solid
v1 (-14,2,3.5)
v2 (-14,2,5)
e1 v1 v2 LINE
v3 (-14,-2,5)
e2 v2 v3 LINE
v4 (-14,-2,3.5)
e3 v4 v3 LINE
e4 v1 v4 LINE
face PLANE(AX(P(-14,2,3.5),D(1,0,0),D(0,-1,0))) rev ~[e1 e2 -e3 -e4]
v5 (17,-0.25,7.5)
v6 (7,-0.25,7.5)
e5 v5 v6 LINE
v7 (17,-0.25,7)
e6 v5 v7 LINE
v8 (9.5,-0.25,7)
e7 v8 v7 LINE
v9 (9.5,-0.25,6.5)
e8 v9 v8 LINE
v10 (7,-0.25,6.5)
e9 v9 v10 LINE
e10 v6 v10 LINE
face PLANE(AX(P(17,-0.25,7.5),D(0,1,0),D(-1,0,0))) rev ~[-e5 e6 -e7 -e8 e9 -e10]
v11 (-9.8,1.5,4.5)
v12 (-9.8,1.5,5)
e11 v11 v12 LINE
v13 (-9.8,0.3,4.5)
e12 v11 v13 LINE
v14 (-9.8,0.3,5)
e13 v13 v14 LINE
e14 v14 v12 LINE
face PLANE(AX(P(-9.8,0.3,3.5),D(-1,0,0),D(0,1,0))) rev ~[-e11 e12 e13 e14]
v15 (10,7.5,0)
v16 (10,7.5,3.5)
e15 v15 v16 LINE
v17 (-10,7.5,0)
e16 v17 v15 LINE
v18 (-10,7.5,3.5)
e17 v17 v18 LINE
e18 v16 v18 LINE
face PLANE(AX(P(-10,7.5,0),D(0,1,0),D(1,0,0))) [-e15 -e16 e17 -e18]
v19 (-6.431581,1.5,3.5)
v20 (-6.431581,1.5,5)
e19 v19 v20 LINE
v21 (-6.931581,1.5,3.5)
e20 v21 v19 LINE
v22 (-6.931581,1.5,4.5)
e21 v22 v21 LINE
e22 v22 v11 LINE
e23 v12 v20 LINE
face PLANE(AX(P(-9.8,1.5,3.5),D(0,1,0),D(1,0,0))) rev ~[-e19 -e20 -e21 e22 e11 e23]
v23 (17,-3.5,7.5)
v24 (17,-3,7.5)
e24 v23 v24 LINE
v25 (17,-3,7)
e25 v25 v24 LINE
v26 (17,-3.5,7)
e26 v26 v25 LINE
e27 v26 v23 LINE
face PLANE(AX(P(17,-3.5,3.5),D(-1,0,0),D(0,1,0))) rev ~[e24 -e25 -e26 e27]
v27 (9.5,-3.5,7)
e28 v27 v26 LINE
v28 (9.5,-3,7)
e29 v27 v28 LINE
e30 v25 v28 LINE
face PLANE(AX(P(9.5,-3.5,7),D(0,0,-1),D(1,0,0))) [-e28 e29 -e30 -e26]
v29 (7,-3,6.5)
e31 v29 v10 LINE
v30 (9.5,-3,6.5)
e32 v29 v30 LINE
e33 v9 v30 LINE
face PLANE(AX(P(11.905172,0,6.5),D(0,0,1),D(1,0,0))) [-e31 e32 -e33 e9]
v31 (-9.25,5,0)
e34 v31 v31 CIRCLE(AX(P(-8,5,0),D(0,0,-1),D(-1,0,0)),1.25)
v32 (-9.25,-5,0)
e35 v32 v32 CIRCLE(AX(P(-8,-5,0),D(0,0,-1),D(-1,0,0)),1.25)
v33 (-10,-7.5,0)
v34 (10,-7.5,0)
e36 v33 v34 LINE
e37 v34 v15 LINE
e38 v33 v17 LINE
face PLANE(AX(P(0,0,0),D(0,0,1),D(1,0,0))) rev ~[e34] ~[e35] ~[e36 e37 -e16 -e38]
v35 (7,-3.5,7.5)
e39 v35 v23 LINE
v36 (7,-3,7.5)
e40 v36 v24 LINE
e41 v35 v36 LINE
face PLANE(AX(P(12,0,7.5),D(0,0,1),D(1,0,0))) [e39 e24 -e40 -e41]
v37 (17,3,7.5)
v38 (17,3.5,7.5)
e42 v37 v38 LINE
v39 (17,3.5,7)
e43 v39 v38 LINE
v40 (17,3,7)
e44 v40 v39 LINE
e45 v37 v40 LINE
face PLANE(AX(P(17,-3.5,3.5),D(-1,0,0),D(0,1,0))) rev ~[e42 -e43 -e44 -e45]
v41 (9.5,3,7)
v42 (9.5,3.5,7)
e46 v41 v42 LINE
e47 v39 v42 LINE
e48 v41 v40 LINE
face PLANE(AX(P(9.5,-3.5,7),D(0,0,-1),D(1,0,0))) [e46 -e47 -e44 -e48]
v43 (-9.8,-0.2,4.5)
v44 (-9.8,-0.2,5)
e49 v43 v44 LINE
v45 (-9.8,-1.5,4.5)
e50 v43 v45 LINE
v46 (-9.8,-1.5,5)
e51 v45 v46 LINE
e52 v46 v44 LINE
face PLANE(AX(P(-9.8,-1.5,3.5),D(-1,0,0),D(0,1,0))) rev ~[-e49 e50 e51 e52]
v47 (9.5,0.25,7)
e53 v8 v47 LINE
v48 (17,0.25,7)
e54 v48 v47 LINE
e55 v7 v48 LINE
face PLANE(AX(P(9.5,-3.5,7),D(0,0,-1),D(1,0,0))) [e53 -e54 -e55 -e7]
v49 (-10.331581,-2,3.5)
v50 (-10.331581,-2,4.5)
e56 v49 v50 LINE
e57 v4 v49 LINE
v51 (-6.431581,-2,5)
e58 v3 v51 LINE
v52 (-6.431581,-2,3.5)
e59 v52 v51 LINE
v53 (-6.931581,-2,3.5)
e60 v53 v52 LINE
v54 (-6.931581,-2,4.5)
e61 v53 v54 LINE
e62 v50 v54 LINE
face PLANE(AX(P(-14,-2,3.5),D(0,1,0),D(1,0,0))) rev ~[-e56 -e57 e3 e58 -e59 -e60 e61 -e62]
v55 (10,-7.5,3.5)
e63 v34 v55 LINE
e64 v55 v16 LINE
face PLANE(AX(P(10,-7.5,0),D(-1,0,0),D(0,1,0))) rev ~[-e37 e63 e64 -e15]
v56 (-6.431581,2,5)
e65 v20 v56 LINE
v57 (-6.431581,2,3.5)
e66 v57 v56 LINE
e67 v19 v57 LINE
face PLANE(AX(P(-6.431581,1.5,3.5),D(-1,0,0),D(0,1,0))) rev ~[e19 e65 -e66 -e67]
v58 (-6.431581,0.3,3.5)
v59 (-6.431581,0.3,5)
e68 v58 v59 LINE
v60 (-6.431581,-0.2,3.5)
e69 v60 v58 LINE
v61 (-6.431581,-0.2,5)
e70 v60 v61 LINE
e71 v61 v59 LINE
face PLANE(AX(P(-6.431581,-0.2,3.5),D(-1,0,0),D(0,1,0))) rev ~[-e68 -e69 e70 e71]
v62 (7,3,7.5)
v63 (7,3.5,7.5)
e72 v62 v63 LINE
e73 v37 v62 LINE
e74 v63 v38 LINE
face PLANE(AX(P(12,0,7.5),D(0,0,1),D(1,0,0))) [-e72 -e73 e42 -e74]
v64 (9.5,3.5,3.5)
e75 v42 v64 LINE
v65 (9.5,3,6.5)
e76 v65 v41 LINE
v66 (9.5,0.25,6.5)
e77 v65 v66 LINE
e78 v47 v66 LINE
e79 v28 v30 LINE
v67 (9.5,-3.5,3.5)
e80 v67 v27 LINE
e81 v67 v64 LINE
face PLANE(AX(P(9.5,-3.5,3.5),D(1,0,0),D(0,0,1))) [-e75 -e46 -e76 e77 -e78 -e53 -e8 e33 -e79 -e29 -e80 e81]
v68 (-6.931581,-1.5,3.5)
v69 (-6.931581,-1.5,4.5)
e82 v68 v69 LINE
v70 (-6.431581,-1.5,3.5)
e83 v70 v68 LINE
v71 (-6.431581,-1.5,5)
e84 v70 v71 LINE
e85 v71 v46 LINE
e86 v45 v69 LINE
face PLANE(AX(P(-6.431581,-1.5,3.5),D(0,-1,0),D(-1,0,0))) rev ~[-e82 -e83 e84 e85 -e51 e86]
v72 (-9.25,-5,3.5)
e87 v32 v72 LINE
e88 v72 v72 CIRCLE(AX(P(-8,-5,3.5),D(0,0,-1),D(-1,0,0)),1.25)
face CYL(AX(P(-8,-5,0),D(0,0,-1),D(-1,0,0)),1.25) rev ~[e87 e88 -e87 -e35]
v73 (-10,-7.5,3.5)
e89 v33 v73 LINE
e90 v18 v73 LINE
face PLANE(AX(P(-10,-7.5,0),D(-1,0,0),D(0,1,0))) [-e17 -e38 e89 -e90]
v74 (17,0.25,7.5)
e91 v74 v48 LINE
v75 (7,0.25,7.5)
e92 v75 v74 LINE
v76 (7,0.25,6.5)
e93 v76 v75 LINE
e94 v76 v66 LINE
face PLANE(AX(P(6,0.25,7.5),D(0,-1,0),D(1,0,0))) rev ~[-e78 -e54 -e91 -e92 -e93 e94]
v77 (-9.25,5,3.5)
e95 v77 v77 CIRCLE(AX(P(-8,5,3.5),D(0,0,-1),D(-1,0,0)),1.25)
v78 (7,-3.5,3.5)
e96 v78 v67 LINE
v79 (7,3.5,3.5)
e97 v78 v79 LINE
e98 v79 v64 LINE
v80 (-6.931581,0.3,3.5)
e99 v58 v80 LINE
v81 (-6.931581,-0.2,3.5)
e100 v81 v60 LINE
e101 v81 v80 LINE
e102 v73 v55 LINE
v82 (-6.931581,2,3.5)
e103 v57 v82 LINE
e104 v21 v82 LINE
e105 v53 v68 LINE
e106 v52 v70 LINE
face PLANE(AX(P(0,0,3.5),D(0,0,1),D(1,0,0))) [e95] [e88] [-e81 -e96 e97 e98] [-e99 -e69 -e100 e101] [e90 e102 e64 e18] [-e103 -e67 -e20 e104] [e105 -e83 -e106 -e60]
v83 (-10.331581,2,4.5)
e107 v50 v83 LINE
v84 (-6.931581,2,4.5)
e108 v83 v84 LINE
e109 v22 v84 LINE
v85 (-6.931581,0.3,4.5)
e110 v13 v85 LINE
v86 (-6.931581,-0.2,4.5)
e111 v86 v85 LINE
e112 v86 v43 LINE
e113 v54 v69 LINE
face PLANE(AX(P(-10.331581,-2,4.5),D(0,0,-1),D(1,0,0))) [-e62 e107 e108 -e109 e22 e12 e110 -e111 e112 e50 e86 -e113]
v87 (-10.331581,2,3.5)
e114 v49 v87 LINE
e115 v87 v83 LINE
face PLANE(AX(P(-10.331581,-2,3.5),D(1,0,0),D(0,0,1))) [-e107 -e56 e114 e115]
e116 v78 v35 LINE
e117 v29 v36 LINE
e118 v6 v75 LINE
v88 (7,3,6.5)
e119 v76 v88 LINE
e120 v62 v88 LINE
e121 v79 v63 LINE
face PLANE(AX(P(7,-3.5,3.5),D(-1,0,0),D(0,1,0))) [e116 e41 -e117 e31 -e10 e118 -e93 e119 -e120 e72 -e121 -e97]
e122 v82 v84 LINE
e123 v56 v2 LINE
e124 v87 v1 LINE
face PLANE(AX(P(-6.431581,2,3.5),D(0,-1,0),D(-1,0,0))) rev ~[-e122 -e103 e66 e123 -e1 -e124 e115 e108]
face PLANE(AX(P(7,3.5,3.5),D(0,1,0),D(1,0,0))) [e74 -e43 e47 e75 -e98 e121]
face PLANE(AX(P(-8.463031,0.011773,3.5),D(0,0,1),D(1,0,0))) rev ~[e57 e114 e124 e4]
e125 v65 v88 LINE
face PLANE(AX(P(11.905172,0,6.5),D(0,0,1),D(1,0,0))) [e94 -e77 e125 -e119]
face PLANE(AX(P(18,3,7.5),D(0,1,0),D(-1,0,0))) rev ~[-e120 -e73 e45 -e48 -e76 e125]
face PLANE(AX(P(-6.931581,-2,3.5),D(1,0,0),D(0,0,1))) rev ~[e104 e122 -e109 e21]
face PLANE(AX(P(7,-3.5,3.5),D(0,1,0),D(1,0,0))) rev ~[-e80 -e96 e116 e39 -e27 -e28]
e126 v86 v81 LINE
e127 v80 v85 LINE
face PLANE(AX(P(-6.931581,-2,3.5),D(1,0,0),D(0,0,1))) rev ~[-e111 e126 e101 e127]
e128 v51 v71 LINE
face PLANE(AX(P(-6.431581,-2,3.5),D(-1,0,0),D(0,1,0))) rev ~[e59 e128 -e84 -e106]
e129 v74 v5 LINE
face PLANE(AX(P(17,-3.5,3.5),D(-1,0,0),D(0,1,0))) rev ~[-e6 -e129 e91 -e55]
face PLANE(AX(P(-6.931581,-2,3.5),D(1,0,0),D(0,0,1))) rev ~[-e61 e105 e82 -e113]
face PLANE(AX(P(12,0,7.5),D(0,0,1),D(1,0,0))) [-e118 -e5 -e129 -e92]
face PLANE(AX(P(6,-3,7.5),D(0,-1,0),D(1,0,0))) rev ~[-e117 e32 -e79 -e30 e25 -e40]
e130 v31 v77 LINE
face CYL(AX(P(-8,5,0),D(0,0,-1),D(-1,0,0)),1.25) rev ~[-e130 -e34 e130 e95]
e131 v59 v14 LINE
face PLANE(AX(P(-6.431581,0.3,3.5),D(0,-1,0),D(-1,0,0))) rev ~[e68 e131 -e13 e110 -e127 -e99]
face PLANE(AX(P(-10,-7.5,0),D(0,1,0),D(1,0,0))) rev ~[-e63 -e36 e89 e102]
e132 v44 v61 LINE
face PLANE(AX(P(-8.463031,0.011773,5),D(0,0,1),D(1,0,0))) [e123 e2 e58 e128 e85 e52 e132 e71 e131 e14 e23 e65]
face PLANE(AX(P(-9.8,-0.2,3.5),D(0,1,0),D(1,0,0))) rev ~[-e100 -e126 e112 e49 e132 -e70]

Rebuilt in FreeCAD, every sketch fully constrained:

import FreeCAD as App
import Part
import Sketcher

V = App.Vector

doc = App.newDocument("Part")
params = doc.addObject("Spreadsheet::Sheet", "Params")
for row, (alias, value) in enumerate([
    ("sketch1_width", "20 mm"),
    ("sketch1_height", "15 mm"),
    ("pad1_length", "3.5 mm"),
    ("sketch2_height", "4 mm"),
    ("sketch2_height2", "0.5 mm"),
    ("sketch2_height3", "1.3 mm"),
    ("pad2_length", "1.5 mm"),
    ("sketch3_height", "1 mm"),
    ("sketch3_width", "3.4 mm"),
    ("sketch4_width", "10 mm"),
    ("sketch4_height", "7 mm"),
    ("pad3_length", "4 mm"),
    ("sketch5_width", "7.5 mm"),
    ("sketch5_height", "3.5 mm"),
    ("sketch6_width", "11 mm"),
    ("sketch6_width2", "12 mm"),
    ("sketch6_height", "6 mm"),
    ("sketch6_height2", "0.5 mm"),
    ("pocket3_length", "1 mm"),
    ("sketch7_diameter", "2.5 mm"),
], start=1):
    params.set(f"A{row}", alias)
    params.set(f"B{row}", "=" + value)
    params.setAlias(f"B{row}", alias)

body = doc.addObject("PartDesign::Body", "Body")

sketch1 = body.newObject("Sketcher::SketchObject", "Sketch")
sketch1.AttachmentSupport = (doc.getObject("XY_Plane"), [""])
sketch1.MapMode = "FlatFace"
sketch1.addGeometry(Part.LineSegment(V(-10, 8, 0), V(-10, -8, 0)), False)
sketch1.addGeometry(Part.LineSegment(V(-10, -8, 0), V(10, -8, 0)), False)
sketch1.addGeometry(Part.LineSegment(V(10, -8, 0), V(10, 8, 0)), False)
sketch1.addGeometry(Part.LineSegment(V(10, 8, 0), V(-10, 8, 0)), False)
sketch1.addConstraint(Sketcher.Constraint("Coincident", 0, 2, 1, 1))
sketch1.addConstraint(Sketcher.Constraint("Coincident", 1, 2, 2, 1))
sketch1.addConstraint(Sketcher.Constraint("Coincident", 2, 2, 3, 1))
sketch1.addConstraint(Sketcher.Constraint("Coincident", 3, 2, 0, 1))
sketch1.addConstraint(Sketcher.Constraint("Vertical", 0))
sketch1.addConstraint(Sketcher.Constraint("Horizontal", 1))
sketch1.addConstraint(Sketcher.Constraint("Vertical", 2))
sketch1.addConstraint(Sketcher.Constraint("Horizontal", 3))
sketch1.addConstraint(Sketcher.Constraint("Symmetric", 0, 2, 2, 2, -1, 1))
sketch1.addConstraint(Sketcher.Constraint("DistanceX", 1, 1, 1, 2, 20.0))
sketch1.addConstraint(Sketcher.Constraint("DistanceY", 0, 2, 0, 1, 15.0))
sketch1.setExpression("Constraints[9]", "Params.sketch1_width")
sketch1.setExpression("Constraints[10]", "Params.sketch1_height")
pad1 = body.newObject("PartDesign::Pad", "Pad")
pad1.Profile = sketch1
pad1.setExpression("Length", "Params.pad1_length")

sketch2 = body.newObject("Sketcher::SketchObject", "Sketch001")
sketch2.AttachmentSupport = (doc.getObject("XY_Plane"), [""])
sketch2.MapMode = "FlatFace"
sketch2.AttachmentOffset = App.Placement(V(0, 0, 3.5), App.Rotation())
sketch2.addGeometry(Part.LineSegment(V(-6.4, 2, 0), V(-14, 2, 0)), False)
sketch2.addGeometry(Part.LineSegment(V(-14, 2, 0), V(-14, -2, 0)), False)
sketch2.addGeometry(Part.LineSegment(V(-14, -2, 0), V(-6.4, -2, 0)), False)
sketch2.addGeometry(Part.LineSegment(V(-6.4, -2, 0), V(-6.4, -1.5, 0)), False)
sketch2.addGeometry(Part.LineSegment(V(-6.4, -1.5, 0), V(-9.8, -1.5, 0)), False)
sketch2.addGeometry(Part.LineSegment(V(-9.8, -1.5, 0), V(-9.8, -0.2, 0)), False)
sketch2.addGeometry(Part.LineSegment(V(-9.8, -0.2, 0), V(-6.4, -0.2, 0)), False)
sketch2.addGeometry(Part.LineSegment(V(-6.4, -0.2, 0), V(-6.4, 0.3, 0)), False)
sketch2.addGeometry(Part.LineSegment(V(-6.4, 0.3, 0), V(-9.8, 0.3, 0)), False)
sketch2.addGeometry(Part.LineSegment(V(-9.8, 0.3, 0), V(-9.8, 1.5, 0)), False)
sketch2.addGeometry(Part.LineSegment(V(-9.8, 1.5, 0), V(-6.4, 1.5, 0)), False)
sketch2.addGeometry(Part.LineSegment(V(-6.4, 1.5, 0), V(-6.4, 2, 0)), False)
sketch2.addConstraint(Sketcher.Constraint("Coincident", 0, 2, 1, 1))
sketch2.addConstraint(Sketcher.Constraint("Coincident", 1, 2, 2, 1))
sketch2.addConstraint(Sketcher.Constraint("Coincident", 2, 2, 3, 1))
sketch2.addConstraint(Sketcher.Constraint("Coincident", 3, 2, 4, 1))
sketch2.addConstraint(Sketcher.Constraint("Coincident", 4, 2, 5, 1))
sketch2.addConstraint(Sketcher.Constraint("Coincident", 5, 2, 6, 1))
sketch2.addConstraint(Sketcher.Constraint("Coincident", 6, 2, 7, 1))
sketch2.addConstraint(Sketcher.Constraint("Coincident", 7, 2, 8, 1))
sketch2.addConstraint(Sketcher.Constraint("Coincident", 8, 2, 9, 1))
sketch2.addConstraint(Sketcher.Constraint("Coincident", 9, 2, 10, 1))
sketch2.addConstraint(Sketcher.Constraint("Coincident", 10, 2, 11, 1))
sketch2.addConstraint(Sketcher.Constraint("Coincident", 11, 2, 0, 1))
sketch2.addConstraint(Sketcher.Constraint("Horizontal", 0))
sketch2.addConstraint(Sketcher.Constraint("Vertical", 1))
sketch2.addConstraint(Sketcher.Constraint("Horizontal", 2))
sketch2.addConstraint(Sketcher.Constraint("Vertical", 3))
sketch2.addConstraint(Sketcher.Constraint("Horizontal", 4))
sketch2.addConstraint(Sketcher.Constraint("Vertical", 5))
sketch2.addConstraint(Sketcher.Constraint("Horizontal", 6))
sketch2.addConstraint(Sketcher.Constraint("Vertical", 7))
sketch2.addConstraint(Sketcher.Constraint("Horizontal", 8))
sketch2.addConstraint(Sketcher.Constraint("Vertical", 9))
sketch2.addConstraint(Sketcher.Constraint("Horizontal", 10))
sketch2.addConstraint(Sketcher.Constraint("Vertical", 11))
sketch2.addConstraint(Sketcher.Constraint("Symmetric", 4, 2, 9, 2, -1))
sketch2.addConstraint(Sketcher.Constraint("Symmetric", 2, 2, 11, 2, -1))
sketch2.addConstraint(Sketcher.Constraint("Vertical", 3, 2, 6, 2))
sketch2.addConstraint(Sketcher.Constraint("Equal", 3, 7))
sketch2.addConstraint(Sketcher.Constraint("DistanceY", 1, 2, 1, 1, 4.0))
sketch2.addConstraint(Sketcher.Constraint("DistanceY", 3, 1, 3, 2, 0.5))
sketch2.addConstraint(Sketcher.Constraint("DistanceY", 5, 1, 5, 2, 1.3))
sketch2.addConstraint(Sketcher.Constraint("DistanceX", 0, 2, -1, 1, 14.0))
sketch2.addConstraint(Sketcher.Constraint("DistanceX", 4, 2, -1, 1, 9.8))
sketch2.addConstraint(Sketcher.Constraint("DistanceX", 0, 2, 0, 1, 7.568419))
sketch2.setExpression("Constraints[28]", "Params.sketch2_height")
sketch2.setExpression("Constraints[29]", "Params.sketch2_height2")
sketch2.setExpression("Constraints[30]", "Params.sketch2_height3")
pad2 = body.newObject("PartDesign::Pad", "Pad001")
pad2.Profile = sketch2
pad2.setExpression("Length", "Params.pad2_length")

sketch3 = body.newObject("Sketcher::SketchObject", "Sketch002")
sketch3.AttachmentSupport = (doc.getObject("XZ_Plane"), [""])
sketch3.MapMode = "FlatFace"
sketch3.AttachmentOffset = App.Placement(V(0, 0, 2), App.Rotation())
sketch3.addGeometry(Part.LineSegment(V(-10.3, 4.5, 0), V(-10.3, 3.5, 0)), False)
sketch3.addGeometry(Part.LineSegment(V(-10.3, 3.5, 0), V(-6.9, 3.5, 0)), False)
sketch3.addGeometry(Part.LineSegment(V(-6.9, 3.5, 0), V(-6.9, 4.5, 0)), False)
sketch3.addGeometry(Part.LineSegment(V(-6.9, 4.5, 0), V(-10.3, 4.5, 0)), False)
sketch3.addConstraint(Sketcher.Constraint("Coincident", 0, 2, 1, 1))
sketch3.addConstraint(Sketcher.Constraint("Coincident", 1, 2, 2, 1))
sketch3.addConstraint(Sketcher.Constraint("Coincident", 2, 2, 3, 1))
sketch3.addConstraint(Sketcher.Constraint("Coincident", 3, 2, 0, 1))
sketch3.addConstraint(Sketcher.Constraint("Vertical", 0))
sketch3.addConstraint(Sketcher.Constraint("Horizontal", 1))
sketch3.addConstraint(Sketcher.Constraint("Vertical", 2))
sketch3.addConstraint(Sketcher.Constraint("Horizontal", 3))
sketch3.addConstraint(Sketcher.Constraint("DistanceY", 0, 2, 0, 1, 1.0))
sketch3.addConstraint(Sketcher.Constraint("DistanceX", 1, 1, 1, 2, 3.4))
sketch3.addConstraint(Sketcher.Constraint("DistanceY", -1, 1, 0, 2, 3.5))
sketch3.addConstraint(Sketcher.Constraint("DistanceX", 0, 2, -1, 1, 10.331581))
sketch3.setExpression("Constraints[8]", "Params.sketch3_height")
sketch3.setExpression("Constraints[9]", "Params.sketch3_width")
pocket1 = body.newObject("PartDesign::Pocket", "Pocket")
pocket1.Profile = sketch3
pocket1.Type = "ThroughAll"

sketch4 = body.newObject("Sketcher::SketchObject", "Sketch003")
sketch4.AttachmentSupport = (doc.getObject("XY_Plane"), [""])
sketch4.MapMode = "FlatFace"
sketch4.AttachmentOffset = App.Placement(V(0, 0, 3.5), App.Rotation())
sketch4.addGeometry(Part.LineSegment(V(7, 4, 0), V(7, -4, 0)), False)
sketch4.addGeometry(Part.LineSegment(V(7, -4, 0), V(17, -4, 0)), False)
sketch4.addGeometry(Part.LineSegment(V(17, -4, 0), V(17, 4, 0)), False)
sketch4.addGeometry(Part.LineSegment(V(17, 4, 0), V(7, 4, 0)), False)
sketch4.addConstraint(Sketcher.Constraint("Coincident", 0, 2, 1, 1))
sketch4.addConstraint(Sketcher.Constraint("Coincident", 1, 2, 2, 1))
sketch4.addConstraint(Sketcher.Constraint("Coincident", 2, 2, 3, 1))
sketch4.addConstraint(Sketcher.Constraint("Coincident", 3, 2, 0, 1))
sketch4.addConstraint(Sketcher.Constraint("Vertical", 0))
sketch4.addConstraint(Sketcher.Constraint("Horizontal", 1))
sketch4.addConstraint(Sketcher.Constraint("Vertical", 2))
sketch4.addConstraint(Sketcher.Constraint("Horizontal", 3))
sketch4.addConstraint(Sketcher.Constraint("DistanceX", 1, 1, 1, 2, 10.0))
sketch4.addConstraint(Sketcher.Constraint("DistanceY", 0, 2, 0, 1, 7.0))
sketch4.addConstraint(Sketcher.Constraint("DistanceX", -1, 1, 0, 2, 7.0))
sketch4.addConstraint(Sketcher.Constraint("DistanceY", 0, 2, -1, 1, 3.5))
sketch4.setExpression("Constraints[8]", "Params.sketch4_width")
sketch4.setExpression("Constraints[9]", "Params.sketch4_height")
pad3 = body.newObject("PartDesign::Pad", "Pad002")
pad3.Profile = sketch4
pad3.setExpression("Length", "Params.pad3_length")

sketch5 = body.newObject("Sketcher::SketchObject", "Sketch004")
sketch5.AttachmentSupport = (doc.getObject("XZ_Plane"), [""])
sketch5.MapMode = "FlatFace"
sketch5.AttachmentOffset = App.Placement(V(0, 0, 3.5), App.Rotation())
sketch5.addGeometry(Part.LineSegment(V(9.5, 7, 0), V(9.5, 3.5, 0)), False)
sketch5.addGeometry(Part.LineSegment(V(9.5, 3.5, 0), V(17, 3.5, 0)), False)
sketch5.addGeometry(Part.LineSegment(V(17, 3.5, 0), V(17, 7, 0)), False)
sketch5.addGeometry(Part.LineSegment(V(17, 7, 0), V(9.5, 7, 0)), False)
sketch5.addConstraint(Sketcher.Constraint("Coincident", 0, 2, 1, 1))
sketch5.addConstraint(Sketcher.Constraint("Coincident", 1, 2, 2, 1))
sketch5.addConstraint(Sketcher.Constraint("Coincident", 2, 2, 3, 1))
sketch5.addConstraint(Sketcher.Constraint("Coincident", 3, 2, 0, 1))
sketch5.addConstraint(Sketcher.Constraint("Vertical", 0))
sketch5.addConstraint(Sketcher.Constraint("Horizontal", 1))
sketch5.addConstraint(Sketcher.Constraint("Vertical", 2))
sketch5.addConstraint(Sketcher.Constraint("Horizontal", 3))
sketch5.addConstraint(Sketcher.Constraint("DistanceX", 1, 1, 1, 2, 7.5))
sketch5.addConstraint(Sketcher.Constraint("DistanceY", 0, 2, 0, 1, 3.5))
sketch5.addConstraint(Sketcher.Constraint("DistanceX", -1, 1, 1, 2, 17.0))
sketch5.addConstraint(Sketcher.Constraint("DistanceY", -1, 1, 2, 2, 7.0))
sketch5.setExpression("Constraints[8]", "Params.sketch5_width")
sketch5.setExpression("Constraints[9]", "Params.sketch5_height")
pocket2 = body.newObject("PartDesign::Pocket", "Pocket001")
pocket2.Profile = sketch5
pocket2.Type = "ThroughAll"

sketch6 = body.newObject("Sketcher::SketchObject", "Sketch005")
sketch6.AttachmentSupport = (doc.getObject("XY_Plane"), [""])
sketch6.MapMode = "FlatFace"
sketch6.AttachmentOffset = App.Placement(V(0, 0, 7.5), App.Rotation())
sketch6.addGeometry(Part.LineSegment(V(6, 3, 0), V(6, 0.2, 0)), False)
sketch6.addGeometry(Part.LineSegment(V(6, 0.2, 0), V(17, 0.2, 0)), False)
sketch6.addGeometry(Part.LineSegment(V(17, 0.2, 0), V(17, -0.2, 0)), False)
sketch6.addGeometry(Part.LineSegment(V(17, -0.2, 0), V(6, -0.2, 0)), False)
sketch6.addGeometry(Part.LineSegment(V(6, -0.2, 0), V(6, -3, 0)), False)
sketch6.addGeometry(Part.LineSegment(V(6, -3, 0), V(18, -3, 0)), False)
sketch6.addGeometry(Part.LineSegment(V(18, -3, 0), V(18, 3, 0)), False)
sketch6.addGeometry(Part.LineSegment(V(18, 3, 0), V(6, 3, 0)), False)
sketch6.addConstraint(Sketcher.Constraint("Coincident", 0, 2, 1, 1))
sketch6.addConstraint(Sketcher.Constraint("Coincident", 1, 2, 2, 1))
sketch6.addConstraint(Sketcher.Constraint("Coincident", 2, 2, 3, 1))
sketch6.addConstraint(Sketcher.Constraint("Coincident", 3, 2, 4, 1))
sketch6.addConstraint(Sketcher.Constraint("Coincident", 4, 2, 5, 1))
sketch6.addConstraint(Sketcher.Constraint("Coincident", 5, 2, 6, 1))
sketch6.addConstraint(Sketcher.Constraint("Coincident", 6, 2, 7, 1))
sketch6.addConstraint(Sketcher.Constraint("Coincident", 7, 2, 0, 1))
sketch6.addConstraint(Sketcher.Constraint("Vertical", 0))
sketch6.addConstraint(Sketcher.Constraint("Horizontal", 1))
sketch6.addConstraint(Sketcher.Constraint("Vertical", 2))
sketch6.addConstraint(Sketcher.Constraint("Horizontal", 3))
sketch6.addConstraint(Sketcher.Constraint("Vertical", 4))
sketch6.addConstraint(Sketcher.Constraint("Horizontal", 5))
sketch6.addConstraint(Sketcher.Constraint("Vertical", 6))
sketch6.addConstraint(Sketcher.Constraint("Horizontal", 7))
sketch6.addConstraint(Sketcher.Constraint("Symmetric", 0, 2, 3, 2, -1))
sketch6.addConstraint(Sketcher.Constraint("Equal", 0, 4))
sketch6.addConstraint(Sketcher.Constraint("DistanceX", 1, 1, 1, 2, 11.0))
sketch6.addConstraint(Sketcher.Constraint("DistanceX", 5, 1, 5, 2, 12.0))
sketch6.addConstraint(Sketcher.Constraint("DistanceY", 6, 1, 6, 2, 6.0))
sketch6.addConstraint(Sketcher.Constraint("DistanceY", 2, 2, 2, 1, 0.5))
sketch6.addConstraint(Sketcher.Constraint("DistanceX", -1, 1, 0, 2, 6.0))
sketch6.setExpression("Constraints[18]", "Params.sketch6_width")
sketch6.setExpression("Constraints[19]", "Params.sketch6_width2")
sketch6.setExpression("Constraints[20]", "Params.sketch6_height")
sketch6.setExpression("Constraints[21]", "Params.sketch6_height2")
pocket3 = body.newObject("PartDesign::Pocket", "Pocket002")
pocket3.Profile = sketch6
pocket3.setExpression("Length", "Params.pocket3_length")

sketch7 = body.newObject("Sketcher::SketchObject", "Sketch006")
sketch7.AttachmentSupport = (doc.getObject("XY_Plane"), [""])
sketch7.MapMode = "FlatFace"
sketch7.addGeometry(Part.Circle(V(-8, -5, 0), V(0, 0, 1), 1.2), False)
sketch7.addGeometry(Part.Circle(V(-8, 5, 0), V(0, 0, 1), 1.2), False)
sketch7.addConstraint(Sketcher.Constraint("Equal", 0, 1))
sketch7.addConstraint(Sketcher.Constraint("Symmetric", 0, 3, 1, 3, -1))
sketch7.addConstraint(Sketcher.Constraint("Diameter", 0, 2.5))
sketch7.addConstraint(Sketcher.Constraint("DistanceX", 0, 3, -1, 1, 8.0))
sketch7.addConstraint(Sketcher.Constraint("DistanceY", 0, 3, -1, 1, 5.0))
sketch7.setExpression("Constraints[2]", "Params.sketch7_diameter")
pocket4 = body.newObject("PartDesign::Pocket", "Pocket003")
pocket4.Profile = sketch7
pocket4.Type = "ThroughAll"
pocket4.Reversed = True

doc.recompute()
